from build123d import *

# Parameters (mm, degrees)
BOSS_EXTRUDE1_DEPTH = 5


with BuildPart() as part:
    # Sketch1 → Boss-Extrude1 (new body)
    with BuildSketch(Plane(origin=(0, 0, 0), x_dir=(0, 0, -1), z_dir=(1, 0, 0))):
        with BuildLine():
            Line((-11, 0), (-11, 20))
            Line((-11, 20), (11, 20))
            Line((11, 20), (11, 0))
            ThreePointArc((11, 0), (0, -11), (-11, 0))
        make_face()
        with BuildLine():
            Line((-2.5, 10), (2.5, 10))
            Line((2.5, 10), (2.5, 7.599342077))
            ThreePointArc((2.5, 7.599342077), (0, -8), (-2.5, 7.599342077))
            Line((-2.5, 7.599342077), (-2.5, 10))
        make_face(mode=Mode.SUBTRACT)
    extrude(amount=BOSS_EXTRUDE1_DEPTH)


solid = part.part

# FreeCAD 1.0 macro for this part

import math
import FreeCAD as App
import Part
import Sketcher

doc = App.newDocument("Part")
body = doc.addObject("PartDesign::Body", "Body")

# Sketch on YZ plane
sketch1 = doc.addObject("Sketcher::SketchObject", "Sketch")
body.addObject(sketch1)
sketch1.AttachmentSupport = (doc.YZ_Plane, [""])
sketch1.MapMode = "FlatFace"
sketch1.addGeometry(Part.LineSegment(App.Vector(20, 11, 0), App.Vector(0, 11, 0)), False)
sketch1.addGeometry(Part.ArcOfCircle(Part.Circle(App.Vector(0, 0, 0), App.Vector(0, 0, 1), 11), math.radians(90), math.radians(270)), False)
sketch1.addGeometry(Part.LineSegment(App.Vector(0, -11, 0), App.Vector(20, -11, 0)), False)
sketch1.addGeometry(Part.LineSegment(App.Vector(20, -11, 0), App.Vector(20, 11, 0)), False)
sketch1.addGeometry(Part.LineSegment(App.Vector(10, 2.5, 0), App.Vector(10, -2.5, 0)), False)
sketch1.addGeometry(Part.LineSegment(App.Vector(10, -2.5, 0), App.Vector(7.6, -2.5, 0)), False)
sketch1.addGeometry(Part.ArcOfCircle(Part.Circle(App.Vector(0, 0, 0), App.Vector(0, 0, 1), 8), math.radians(18), math.radians(342)), False)
sketch1.addGeometry(Part.LineSegment(App.Vector(7.6, 2.5, 0), App.Vector(10, 2.5, 0)), False)
sketch1.addConstraint(Sketcher.Constraint("Tangent", 0, 2, 1, 1))
sketch1.addConstraint(Sketcher.Constraint("Tangent", 1, 2, 2, 1))
sketch1.addConstraint(Sketcher.Constraint("Coincident", 2, 2, 3, 1))
sketch1.addConstraint(Sketcher.Constraint("Coincident", 3, 2, 0, 1))
sketch1.addConstraint(Sketcher.Constraint("Coincident", 4, 2, 5, 1))
sketch1.addConstraint(Sketcher.Constraint("Coincident", 5, 2, 6, 2))
sketch1.addConstraint(Sketcher.Constraint("Coincident", 6, 1, 7, 1))
sketch1.addConstraint(Sketcher.Constraint("Coincident", 7, 2, 4, 1))
sketch1.addConstraint(Sketcher.Constraint("Horizontal", 0))
sketch1.addConstraint(Sketcher.Constraint("Horizontal", 2))
sketch1.addConstraint(Sketcher.Constraint("Vertical", 3))
sketch1.addConstraint(Sketcher.Constraint("Vertical", 4))
sketch1.addConstraint(Sketcher.Constraint("Horizontal", 5))
sketch1.addConstraint(Sketcher.Constraint("Horizontal", 7))
sketch1.addConstraint(Sketcher.Constraint("Coincident", 1, 3, -1, 1))
sketch1.addConstraint(Sketcher.Constraint("Coincident", 6, 3, -1, 1))
sketch1.addConstraint(Sketcher.Constraint("Vertical", 5, 2, 6, 1))
sketch1.addConstraint(Sketcher.Constraint("Radius", 1, 11.0))
sketch1.addConstraint(Sketcher.Constraint("Radius", 6, 8.0))
sketch1.addConstraint(Sketcher.Constraint("DistanceX", 0, 2, 0, 1, 20.0))
sketch1.addConstraint(Sketcher.Constraint("DistanceY", 4, 2, 4, 1, 5.0))
sketch1.addConstraint(Sketcher.Constraint("DistanceX", -1, 1, 4, 2, 10.0))
pad1 = doc.addObject("PartDesign::Pad", "Pad")
body.addObject(pad1)
pad1.Profile = sketch1
pad1.Length = 5

doc.recompute()
